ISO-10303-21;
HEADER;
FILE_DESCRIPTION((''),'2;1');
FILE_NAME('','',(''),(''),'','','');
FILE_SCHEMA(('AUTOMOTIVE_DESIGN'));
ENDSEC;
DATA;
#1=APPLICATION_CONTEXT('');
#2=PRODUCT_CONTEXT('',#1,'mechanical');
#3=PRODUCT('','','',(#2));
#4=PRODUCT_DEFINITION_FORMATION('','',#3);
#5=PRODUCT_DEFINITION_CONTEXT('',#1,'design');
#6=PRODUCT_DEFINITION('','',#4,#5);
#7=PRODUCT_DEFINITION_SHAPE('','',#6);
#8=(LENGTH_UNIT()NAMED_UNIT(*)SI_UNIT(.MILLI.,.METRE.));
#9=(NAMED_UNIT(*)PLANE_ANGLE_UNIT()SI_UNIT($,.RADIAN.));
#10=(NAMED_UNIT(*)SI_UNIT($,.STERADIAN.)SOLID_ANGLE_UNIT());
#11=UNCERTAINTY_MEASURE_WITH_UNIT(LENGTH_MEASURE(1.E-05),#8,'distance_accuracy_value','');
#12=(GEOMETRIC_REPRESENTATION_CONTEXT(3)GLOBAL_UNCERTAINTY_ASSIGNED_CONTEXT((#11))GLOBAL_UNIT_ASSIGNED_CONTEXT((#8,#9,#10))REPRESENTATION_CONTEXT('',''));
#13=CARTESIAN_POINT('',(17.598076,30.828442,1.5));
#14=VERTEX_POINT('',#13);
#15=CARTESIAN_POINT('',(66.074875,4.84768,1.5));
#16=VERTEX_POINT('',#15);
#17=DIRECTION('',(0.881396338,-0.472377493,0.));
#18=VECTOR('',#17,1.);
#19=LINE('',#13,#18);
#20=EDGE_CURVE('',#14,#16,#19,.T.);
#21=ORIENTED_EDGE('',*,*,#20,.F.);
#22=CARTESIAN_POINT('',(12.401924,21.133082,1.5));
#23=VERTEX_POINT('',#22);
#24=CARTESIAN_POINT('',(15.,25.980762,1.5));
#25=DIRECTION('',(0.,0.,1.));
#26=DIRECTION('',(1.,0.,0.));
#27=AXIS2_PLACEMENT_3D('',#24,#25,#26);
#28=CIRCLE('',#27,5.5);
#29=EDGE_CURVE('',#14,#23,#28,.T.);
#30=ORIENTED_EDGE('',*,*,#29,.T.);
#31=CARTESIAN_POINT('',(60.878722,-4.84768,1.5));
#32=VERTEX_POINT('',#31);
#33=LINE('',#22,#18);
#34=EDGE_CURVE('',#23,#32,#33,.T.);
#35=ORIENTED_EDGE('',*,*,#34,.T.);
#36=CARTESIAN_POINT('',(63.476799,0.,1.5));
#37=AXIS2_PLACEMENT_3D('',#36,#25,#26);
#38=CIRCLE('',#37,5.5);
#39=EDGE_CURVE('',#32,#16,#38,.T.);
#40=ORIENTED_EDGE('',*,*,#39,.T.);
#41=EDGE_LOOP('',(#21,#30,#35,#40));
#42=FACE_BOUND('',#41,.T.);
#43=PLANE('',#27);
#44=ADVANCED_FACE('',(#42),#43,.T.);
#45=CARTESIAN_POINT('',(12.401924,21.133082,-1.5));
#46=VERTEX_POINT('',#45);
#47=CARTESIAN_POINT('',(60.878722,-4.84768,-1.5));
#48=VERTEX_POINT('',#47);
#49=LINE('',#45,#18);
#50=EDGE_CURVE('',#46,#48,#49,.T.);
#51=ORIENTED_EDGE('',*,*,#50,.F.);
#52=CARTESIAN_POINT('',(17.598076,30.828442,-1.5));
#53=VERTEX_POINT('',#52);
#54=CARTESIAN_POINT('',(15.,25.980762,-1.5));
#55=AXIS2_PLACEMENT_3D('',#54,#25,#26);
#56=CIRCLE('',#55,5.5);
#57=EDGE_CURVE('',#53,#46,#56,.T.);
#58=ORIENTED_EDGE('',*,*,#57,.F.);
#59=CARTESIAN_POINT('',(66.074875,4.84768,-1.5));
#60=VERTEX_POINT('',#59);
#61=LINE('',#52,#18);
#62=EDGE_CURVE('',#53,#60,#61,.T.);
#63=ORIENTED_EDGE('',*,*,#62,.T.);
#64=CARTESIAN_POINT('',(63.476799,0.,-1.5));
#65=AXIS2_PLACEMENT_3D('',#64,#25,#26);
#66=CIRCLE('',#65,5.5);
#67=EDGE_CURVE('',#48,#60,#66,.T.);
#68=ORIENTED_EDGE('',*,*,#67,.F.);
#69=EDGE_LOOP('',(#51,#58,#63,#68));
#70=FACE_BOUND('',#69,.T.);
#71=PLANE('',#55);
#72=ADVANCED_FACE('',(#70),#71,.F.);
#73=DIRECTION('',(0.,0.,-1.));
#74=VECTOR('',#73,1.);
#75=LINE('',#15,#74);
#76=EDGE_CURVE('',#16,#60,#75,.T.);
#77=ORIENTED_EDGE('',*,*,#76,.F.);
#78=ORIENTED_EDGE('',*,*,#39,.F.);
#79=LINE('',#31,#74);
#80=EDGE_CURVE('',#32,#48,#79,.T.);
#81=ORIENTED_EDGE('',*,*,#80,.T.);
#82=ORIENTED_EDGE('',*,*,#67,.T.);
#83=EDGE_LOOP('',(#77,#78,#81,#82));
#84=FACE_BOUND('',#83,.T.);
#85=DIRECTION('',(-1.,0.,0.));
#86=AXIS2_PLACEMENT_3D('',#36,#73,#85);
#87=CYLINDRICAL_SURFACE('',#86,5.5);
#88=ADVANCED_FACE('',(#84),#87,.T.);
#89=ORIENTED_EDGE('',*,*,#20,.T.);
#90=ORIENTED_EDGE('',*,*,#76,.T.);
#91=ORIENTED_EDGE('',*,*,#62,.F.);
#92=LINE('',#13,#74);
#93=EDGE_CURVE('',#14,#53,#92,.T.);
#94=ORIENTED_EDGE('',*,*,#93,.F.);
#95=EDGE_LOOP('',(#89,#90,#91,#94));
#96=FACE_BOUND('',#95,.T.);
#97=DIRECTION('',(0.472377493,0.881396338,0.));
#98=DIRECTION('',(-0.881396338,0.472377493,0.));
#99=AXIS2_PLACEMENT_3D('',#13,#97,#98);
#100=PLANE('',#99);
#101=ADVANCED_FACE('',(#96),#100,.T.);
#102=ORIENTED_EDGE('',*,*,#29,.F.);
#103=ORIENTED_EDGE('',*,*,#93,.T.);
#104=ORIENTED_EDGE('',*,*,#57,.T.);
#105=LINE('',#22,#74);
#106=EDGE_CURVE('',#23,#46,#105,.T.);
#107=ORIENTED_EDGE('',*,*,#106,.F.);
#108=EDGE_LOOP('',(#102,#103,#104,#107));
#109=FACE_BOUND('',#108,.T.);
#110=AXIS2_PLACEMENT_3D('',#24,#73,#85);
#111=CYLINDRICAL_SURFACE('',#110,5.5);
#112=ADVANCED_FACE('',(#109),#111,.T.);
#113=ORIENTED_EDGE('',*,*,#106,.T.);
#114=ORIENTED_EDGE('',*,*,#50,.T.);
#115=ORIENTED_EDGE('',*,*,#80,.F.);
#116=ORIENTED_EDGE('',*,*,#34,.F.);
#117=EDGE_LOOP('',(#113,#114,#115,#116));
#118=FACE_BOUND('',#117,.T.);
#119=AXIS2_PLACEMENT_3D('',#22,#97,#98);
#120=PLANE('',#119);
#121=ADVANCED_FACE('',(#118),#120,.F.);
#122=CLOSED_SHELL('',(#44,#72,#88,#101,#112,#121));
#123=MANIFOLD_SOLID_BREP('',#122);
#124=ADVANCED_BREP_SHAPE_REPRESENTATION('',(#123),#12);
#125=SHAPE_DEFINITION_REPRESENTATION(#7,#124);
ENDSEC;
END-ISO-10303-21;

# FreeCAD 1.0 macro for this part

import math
import FreeCAD as App
import Part
import Sketcher
from FreeCAD import Vector
Q = App.Units.Quantity

doc = App.newDocument("Part")
body = doc.addObject("PartDesign::Body", "Body")

sketch1 = body.newObject("Sketcher::SketchObject", "Sketch")
sketch1.AttachmentSupport = (doc.getObject("XY_Plane"), [""])
sketch1.MapMode = "FlatFace"
sketch1.addGeometry(Part.LineSegment(Vector(66, 5, 0), Vector(18, 31, 0)), False)
sketch1.addGeometry(Part.ArcOfCircle(Part.Circle(Vector(15, 26, 0), Vector(0, 0, 1), 6), math.radians(62), math.radians(242)), False)
sketch1.addGeometry(Part.LineSegment(Vector(12, 21, 0), Vector(61, -5, 0)), False)
sketch1.addGeometry(Part.ArcOfCircle(Part.Circle(Vector(63, 0, 0), Vector(0, 0, 1), 6), math.radians(-118), math.radians(62)), False)
sketch1.addConstraint(Sketcher.Constraint("Tangent", 0, 2, 1, 1))
sketch1.addConstraint(Sketcher.Constraint("Tangent", 1, 2, 2, 1))
sketch1.addConstraint(Sketcher.Constraint("Tangent", 2, 2, 3, 1))
sketch1.addConstraint(Sketcher.Constraint("Tangent", 3, 2, 0, 1))
sketch1.addConstraint(Sketcher.Constraint("Equal", 1, 3))
sketch1.addConstraint(Sketcher.Constraint("PointOnObject", 3, 3, -1))
sketch1.addConstraint(Sketcher.Constraint("Radius", 1, Q("5.5 mm")))
sketch1.addConstraint(Sketcher.Constraint("Distance", 0, Q("55 mm")))
sketch1.addConstraint(Sketcher.Constraint("DistanceX", -1, 1, 1, 3, Q("15 mm")))
sketch1.addConstraint(Sketcher.Constraint("DistanceX", -1, 1, 3, 3, Q("63.476799 mm")))
pad1 = body.newObject("PartDesign::Pad", "Pad")
pad1.Profile = sketch1
pad1.Length = 3
pad1.Midplane = True

doc.recompute()
